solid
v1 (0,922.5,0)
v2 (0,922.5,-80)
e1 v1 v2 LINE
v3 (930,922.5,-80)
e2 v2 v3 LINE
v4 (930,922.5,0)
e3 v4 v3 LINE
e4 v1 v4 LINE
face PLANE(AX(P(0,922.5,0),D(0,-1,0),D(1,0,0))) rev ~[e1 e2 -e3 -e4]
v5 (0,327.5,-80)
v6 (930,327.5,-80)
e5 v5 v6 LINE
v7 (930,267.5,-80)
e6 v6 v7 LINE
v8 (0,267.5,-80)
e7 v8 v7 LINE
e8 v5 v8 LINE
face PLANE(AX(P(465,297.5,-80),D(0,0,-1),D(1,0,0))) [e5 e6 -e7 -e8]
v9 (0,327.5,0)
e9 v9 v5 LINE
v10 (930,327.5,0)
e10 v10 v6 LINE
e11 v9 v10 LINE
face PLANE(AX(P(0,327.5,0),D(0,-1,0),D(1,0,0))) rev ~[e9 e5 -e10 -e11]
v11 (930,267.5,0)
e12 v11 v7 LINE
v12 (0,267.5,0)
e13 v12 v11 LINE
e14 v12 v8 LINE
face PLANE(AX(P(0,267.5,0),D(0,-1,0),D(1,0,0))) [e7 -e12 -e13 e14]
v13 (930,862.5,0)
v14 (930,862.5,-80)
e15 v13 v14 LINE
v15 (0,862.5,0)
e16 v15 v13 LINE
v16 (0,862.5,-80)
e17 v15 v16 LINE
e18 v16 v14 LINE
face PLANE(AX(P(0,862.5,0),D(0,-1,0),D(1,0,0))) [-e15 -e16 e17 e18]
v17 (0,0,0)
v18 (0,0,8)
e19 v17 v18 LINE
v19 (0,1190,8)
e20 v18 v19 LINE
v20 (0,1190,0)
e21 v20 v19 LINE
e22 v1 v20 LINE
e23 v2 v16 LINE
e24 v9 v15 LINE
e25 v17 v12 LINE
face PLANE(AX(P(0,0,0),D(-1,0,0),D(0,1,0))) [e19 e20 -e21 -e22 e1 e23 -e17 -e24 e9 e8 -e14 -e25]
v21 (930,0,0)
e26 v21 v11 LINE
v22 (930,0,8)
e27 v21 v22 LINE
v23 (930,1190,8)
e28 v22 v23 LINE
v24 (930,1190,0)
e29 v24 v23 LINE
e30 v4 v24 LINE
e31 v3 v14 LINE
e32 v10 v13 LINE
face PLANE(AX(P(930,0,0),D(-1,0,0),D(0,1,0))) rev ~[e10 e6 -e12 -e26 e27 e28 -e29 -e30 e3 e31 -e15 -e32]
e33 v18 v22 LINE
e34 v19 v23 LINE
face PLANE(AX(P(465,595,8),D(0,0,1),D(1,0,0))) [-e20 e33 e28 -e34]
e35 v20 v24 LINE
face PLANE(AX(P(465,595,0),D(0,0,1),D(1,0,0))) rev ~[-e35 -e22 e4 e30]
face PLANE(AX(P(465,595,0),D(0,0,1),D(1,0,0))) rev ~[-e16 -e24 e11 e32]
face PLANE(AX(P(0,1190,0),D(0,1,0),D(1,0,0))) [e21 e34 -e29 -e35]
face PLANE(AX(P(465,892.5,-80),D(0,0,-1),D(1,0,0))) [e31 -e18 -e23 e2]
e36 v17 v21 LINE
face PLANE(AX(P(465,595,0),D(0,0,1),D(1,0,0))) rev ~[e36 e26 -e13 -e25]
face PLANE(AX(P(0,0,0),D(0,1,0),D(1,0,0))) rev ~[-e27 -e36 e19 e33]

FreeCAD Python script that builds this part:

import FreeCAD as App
import Part
import Sketcher

doc = App.newDocument("Part")
body = doc.addObject("PartDesign::Body", "Body")

sketch1 = doc.addObject("Sketcher::SketchObject", "Sketch")
body.addObject(sketch1)
sketch1.AttachmentSupport = (doc.XY_Plane, [""])
sketch1.MapMode = "FlatFace"
sketch1.addGeometry(Part.LineSegment(App.Vector(0, 1190, 0), App.Vector(0, 0, 0)), False)
sketch1.addGeometry(Part.LineSegment(App.Vector(0, 0, 0), App.Vector(930, 0, 0)), False)
sketch1.addGeometry(Part.LineSegment(App.Vector(930, 0, 0), App.Vector(930, 1190, 0)), False)
sketch1.addGeometry(Part.LineSegment(App.Vector(930, 1190, 0), App.Vector(0, 1190, 0)), False)
sketch1.addConstraint(Sketcher.Constraint("Coincident", 0, 2, 1, 1))
sketch1.addConstraint(Sketcher.Constraint("Coincident", 1, 2, 2, 1))
sketch1.addConstraint(Sketcher.Constraint("Coincident", 2, 2, 3, 1))
sketch1.addConstraint(Sketcher.Constraint("Coincident", 3, 2, 0, 1))
sketch1.addConstraint(Sketcher.Constraint("Vertical", 0))
sketch1.addConstraint(Sketcher.Constraint("Horizontal", 1))
sketch1.addConstraint(Sketcher.Constraint("Vertical", 2))
sketch1.addConstraint(Sketcher.Constraint("Horizontal", 3))
sketch1.addConstraint(Sketcher.Constraint("Coincident", 0, 2, -1, 1))
sketch1.addConstraint(Sketcher.Constraint("DistanceX", 1, 1, 1, 2, 930.0))
sketch1.addConstraint(Sketcher.Constraint("DistanceY", 0, 2, 0, 1, 1190.0))
pad1 = doc.addObject("PartDesign::Pad", "Pad")
body.addObject(pad1)
pad1.Profile = sketch1
pad1.Length = 8

sketch2 = doc.addObject("Sketcher::SketchObject", "Sketch001")
body.addObject(sketch2)
sketch2.AttachmentSupport = (doc.XY_Plane, [""])
sketch2.MapMode = "FlatFace"
sketch2.addGeometry(Part.LineSegment(App.Vector(0, 268, 0), App.Vector(0, 328, 0)), False)
sketch2.addGeometry(Part.LineSegment(App.Vector(0, 328, 0), App.Vector(930, 328, 0)), False)
sketch2.addGeometry(Part.LineSegment(App.Vector(930, 328, 0), App.Vector(930, 268, 0)), False)
sketch2.addGeometry(Part.LineSegment(App.Vector(930, 268, 0), App.Vector(0, 268, 0)), False)
sketch2.addGeometry(Part.LineSegment(App.Vector(0, 862, 0), App.Vector(0, 922, 0)), False)
sketch2.addGeometry(Part.LineSegment(App.Vector(0, 922, 0), App.Vector(930, 922, 0)), False)
sketch2.addGeometry(Part.LineSegment(App.Vector(930, 922, 0), App.Vector(930, 862, 0)), False)
sketch2.addGeometry(Part.LineSegment(App.Vector(930, 862, 0), App.Vector(0, 862, 0)), False)
sketch2.addConstraint(Sketcher.Constraint("Coincident", 0, 2, 1, 1))
sketch2.addConstraint(Sketcher.Constraint("Coincident", 1, 2, 2, 1))
sketch2.addConstraint(Sketcher.Constraint("Coincident", 2, 2, 3, 1))
sketch2.addConstraint(Sketcher.Constraint("Coincident", 3, 2, 0, 1))
sketch2.addConstraint(Sketcher.Constraint("Coincident", 4, 2, 5, 1))
sketch2.addConstraint(Sketcher.Constraint("Coincident", 5, 2, 6, 1))
sketch2.addConstraint(Sketcher.Constraint("Coincident", 6, 2, 7, 1))
sketch2.addConstraint(Sketcher.Constraint("Coincident", 7, 2, 4, 1))
sketch2.addConstraint(Sketcher.Constraint("Vertical", 0))
sketch2.addConstraint(Sketcher.Constraint("Horizontal", 1))
sketch2.addConstraint(Sketcher.Constraint("Vertical", 2))
sketch2.addConstraint(Sketcher.Constraint("Horizontal", 3))
sketch2.addConstraint(Sketcher.Constraint("Vertical", 4))
sketch2.addConstraint(Sketcher.Constraint("Horizontal", 5))
sketch2.addConstraint(Sketcher.Constraint("Vertical", 6))
sketch2.addConstraint(Sketcher.Constraint("Horizontal", 7))
sketch2.addConstraint(Sketcher.Constraint("PointOnObject", 0, 2, -2))
sketch2.addConstraint(Sketcher.Constraint("PointOnObject", 4, 2, -2))
sketch2.addConstraint(Sketcher.Constraint("Vertical", 2, 2, 5, 2))
sketch2.addConstraint(Sketcher.Constraint("Equal", 2, 4))
sketch2.addConstraint(Sketcher.Constraint("DistanceX", 1, 1, 1, 2, 930.0))
sketch2.addConstraint(Sketcher.Constraint("DistanceY", 0, 1, 0, 2, 60.0))
sketch2.addConstraint(Sketcher.Constraint("DistanceY", 0, 2, 4, 2, 595.0))
sketch2.addConstraint(Sketcher.Constraint("DistanceY", -1, 1, 0, 2, 327.5))
pad2 = doc.addObject("PartDesign::Pad", "Pad001")
body.addObject(pad2)
pad2.Profile = sketch2
pad2.Length = 80
pad2.Reversed = True

doc.recompute()
